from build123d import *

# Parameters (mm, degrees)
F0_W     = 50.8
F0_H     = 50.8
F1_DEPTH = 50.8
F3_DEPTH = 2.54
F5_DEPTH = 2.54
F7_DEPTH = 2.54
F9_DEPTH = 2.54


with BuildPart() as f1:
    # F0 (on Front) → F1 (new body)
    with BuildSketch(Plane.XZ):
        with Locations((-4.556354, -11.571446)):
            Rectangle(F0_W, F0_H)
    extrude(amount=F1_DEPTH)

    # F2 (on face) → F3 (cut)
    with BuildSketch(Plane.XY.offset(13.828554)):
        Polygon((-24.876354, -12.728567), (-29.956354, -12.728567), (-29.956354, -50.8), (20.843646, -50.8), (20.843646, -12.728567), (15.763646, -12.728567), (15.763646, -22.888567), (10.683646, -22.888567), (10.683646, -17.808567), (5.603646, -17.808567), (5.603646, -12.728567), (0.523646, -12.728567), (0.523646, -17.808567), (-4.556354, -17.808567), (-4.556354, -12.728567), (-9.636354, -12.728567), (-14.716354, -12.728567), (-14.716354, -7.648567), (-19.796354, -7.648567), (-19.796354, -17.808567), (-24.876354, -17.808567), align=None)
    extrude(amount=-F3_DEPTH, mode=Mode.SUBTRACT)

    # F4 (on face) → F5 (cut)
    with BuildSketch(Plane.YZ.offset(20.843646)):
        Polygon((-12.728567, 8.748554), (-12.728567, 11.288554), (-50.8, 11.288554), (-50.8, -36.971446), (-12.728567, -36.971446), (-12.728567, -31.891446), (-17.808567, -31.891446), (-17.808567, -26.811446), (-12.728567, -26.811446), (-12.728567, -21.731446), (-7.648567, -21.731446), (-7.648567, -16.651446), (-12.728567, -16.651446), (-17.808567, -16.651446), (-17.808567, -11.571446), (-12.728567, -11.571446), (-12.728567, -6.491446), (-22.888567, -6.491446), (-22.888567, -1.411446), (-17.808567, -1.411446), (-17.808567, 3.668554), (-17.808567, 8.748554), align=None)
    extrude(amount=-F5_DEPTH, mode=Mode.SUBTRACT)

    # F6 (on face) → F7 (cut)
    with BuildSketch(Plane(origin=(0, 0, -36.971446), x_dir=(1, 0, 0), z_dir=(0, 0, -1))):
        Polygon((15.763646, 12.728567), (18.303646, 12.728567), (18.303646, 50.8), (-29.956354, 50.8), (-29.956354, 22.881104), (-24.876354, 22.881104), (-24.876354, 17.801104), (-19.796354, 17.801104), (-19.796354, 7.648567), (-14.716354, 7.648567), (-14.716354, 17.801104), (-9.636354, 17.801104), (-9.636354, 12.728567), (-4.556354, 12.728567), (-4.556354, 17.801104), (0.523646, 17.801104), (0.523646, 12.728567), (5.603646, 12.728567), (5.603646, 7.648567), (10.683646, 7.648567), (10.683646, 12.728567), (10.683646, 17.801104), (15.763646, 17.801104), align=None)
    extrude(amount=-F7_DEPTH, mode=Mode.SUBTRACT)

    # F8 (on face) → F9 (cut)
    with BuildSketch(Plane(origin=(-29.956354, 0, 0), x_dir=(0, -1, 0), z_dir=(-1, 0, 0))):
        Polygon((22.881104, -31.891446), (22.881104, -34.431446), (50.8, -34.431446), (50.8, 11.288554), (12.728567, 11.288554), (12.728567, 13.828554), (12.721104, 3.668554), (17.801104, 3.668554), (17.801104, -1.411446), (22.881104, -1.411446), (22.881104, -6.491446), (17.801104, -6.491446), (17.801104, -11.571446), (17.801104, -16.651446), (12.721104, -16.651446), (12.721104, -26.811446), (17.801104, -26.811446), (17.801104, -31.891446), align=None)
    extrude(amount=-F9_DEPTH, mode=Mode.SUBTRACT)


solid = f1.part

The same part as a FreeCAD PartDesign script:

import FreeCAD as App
import Part
import Sketcher

V = App.Vector
Q = App.Units.Quantity


def add_polygon(sketch, points):
    """Adds a closed chain of lines whose ends are joined by coincident constraints."""
    first, n = sketch.GeometryCount, len(points)
    for a, b in zip(points, points[1:] + points[:1]):
        sketch.addGeometry(Part.LineSegment(App.Vector(*a, 0), App.Vector(*b, 0)), False)
    for i in range(n):
        sketch.addConstraint(Sketcher.Constraint("Coincident", first + i, 2, first + (i + 1) % n, 1))

doc = App.newDocument("Part")
body = doc.addObject("PartDesign::Body", "Body")

sketch1 = body.newObject("Sketcher::SketchObject", "Sketch")
sketch1.AttachmentSupport = (doc.getObject("XZ_Plane"), [""])
sketch1.MapMode = "FlatFace"
add_polygon(sketch1, [(-29.956354, 13.828554), (-29.956354, -36.971446), (20.843646, -36.971446), (20.843646, 13.828554)])
sketch1.addConstraint([
    Sketcher.Constraint("Vertical", 0),
    Sketcher.Constraint("Horizontal", 1),
    Sketcher.Constraint("Vertical", 2),
    Sketcher.Constraint("Horizontal", 3),
    Sketcher.Constraint("Equal", 3, 0),
    Sketcher.Constraint("DistanceX", 1, 1, 1, 2, Q("2 in")),
    Sketcher.Constraint("DistanceX", 0, 2, -1, 1, 29.956354),
    Sketcher.Constraint("DistanceY", 0, 2, -1, 1, 36.971446),
])
pad1 = body.newObject("PartDesign::Pad", "Pad")
pad1.Profile = sketch1
pad1.Length = Q("2 in")

sketch2 = body.newObject("Sketcher::SketchObject", "Sketch001")
sketch2.AttachmentSupport = (doc.getObject("XY_Plane"), [""])
sketch2.MapMode = "FlatFace"
sketch2.AttachmentOffset = App.Placement(V(0, 0, 13.828554), App.Rotation())
add_polygon(sketch2, [(-24.876354, -12.728567), (-29.956354, -12.728567), (-29.956354, -50.8), (20.843646, -50.8), (20.843646, -12.728567), (15.763646, -12.728567), (15.763646, -22.888567), (10.683646, -22.888567), (10.683646, -17.808567), (5.603646, -17.808567), (5.603646, -12.728567), (0.523646, -12.728567), (0.523646, -17.808567), (-4.556354, -17.808567), (-4.556354, -12.728567), (-14.716354, -12.728567), (-14.716354, -7.648567), (-19.796354, -7.648567), (-19.796354, -17.808567), (-24.876354, -17.808567)])
sketch2.addConstraint([
    Sketcher.Constraint("Horizontal", 0),
    Sketcher.Constraint("Vertical", 1),
    Sketcher.Constraint("Horizontal", 2),
    Sketcher.Constraint("Vertical", 3),
    Sketcher.Constraint("Horizontal", 4),
    Sketcher.Constraint("Vertical", 5),
    Sketcher.Constraint("Horizontal", 6),
    Sketcher.Constraint("Vertical", 7),
    Sketcher.Constraint("Horizontal", 8),
    Sketcher.Constraint("Vertical", 9),
    Sketcher.Constraint("Horizontal", 10),
    Sketcher.Constraint("Vertical", 11),
    Sketcher.Constraint("Horizontal", 12),
    Sketcher.Constraint("Vertical", 13),
    Sketcher.Constraint("Horizontal", 14),
    Sketcher.Constraint("Vertical", 15),
    Sketcher.Constraint("Horizontal", 16),
    Sketcher.Constraint("Vertical", 17),
    Sketcher.Constraint("Horizontal", 18),
    Sketcher.Constraint("Vertical", 19),
    Sketcher.Constraint("Horizontal", 0, 2, 3, 2),
    Sketcher.Constraint("Horizontal", 4, 2, 9, 2),
    Sketcher.Constraint("Horizontal", 8, 2, 11, 2),
    Sketcher.Constraint("Horizontal", 10, 2, 13, 2),
    Sketcher.Constraint("Horizontal", 12, 2, 17, 2),
    Sketcher.Constraint("Equal", 0, 4),
    Sketcher.Constraint("Equal", 4, 6),
    Sketcher.Constraint("Equal", 6, 8),
    Sketcher.Constraint("Equal", 8, 10),
    Sketcher.Constraint("Equal", 10, 12),
    Sketcher.Constraint("Equal", 12, 16),
    Sketcher.Constraint("Equal", 16, 18),
    Sketcher.Constraint("Equal", 14, 5),
    Sketcher.Constraint("Equal", 18, 7),
    Sketcher.Constraint("Equal", 7, 9),
    Sketcher.Constraint("Equal", 13, 15),
    Sketcher.Constraint("DistanceX", 2, 1, 2, 2, Q("2 in")),
    Sketcher.Constraint("DistanceY", 1, 2, -1, 1, Q("2 in")),
    Sketcher.Constraint("DistanceY", 1, 2, 1, 1, 38.071433),
    Sketcher.Constraint("DistanceX", 0, 2, -1, 1, 29.956354),
])
pocket1 = body.newObject("PartDesign::Pocket", "Pocket")
pocket1.Profile = sketch2
pocket1.Length = Q("0.1 in")

sketch3 = body.newObject("Sketcher::SketchObject", "Sketch002")
sketch3.AttachmentSupport = (doc.getObject("YZ_Plane"), [""])
sketch3.MapMode = "FlatFace"
sketch3.AttachmentOffset = App.Placement(V(0, 0, 20.843646), App.Rotation())
add_polygon(sketch3, [(-12.728567, 8.748554), (-12.728567, 11.288554), (-50.8, 11.288554), (-50.8, -36.971446), (-12.728567, -36.971446), (-12.728567, -31.891446), (-17.808567, -31.891446), (-17.808567, -26.811446), (-12.728567, -26.811446), (-12.728567, -21.731446), (-7.648567, -21.731446), (-7.648567, -16.651446), (-17.808567, -16.651446), (-17.808567, -11.571446), (-12.728567, -11.571446), (-12.728567, -6.491446), (-22.888567, -6.491446), (-22.888567, -1.411446), (-17.808567, -1.411446), (-17.808567, 8.748554)])
sketch3.addConstraint([
    Sketcher.Constraint("Vertical", 0),
    Sketcher.Constraint("Horizontal", 1),
    Sketcher.Constraint("Vertical", 2),
    Sketcher.Constraint("Horizontal", 3),
    Sketcher.Constraint("Vertical", 4),
    Sketcher.Constraint("Horizontal", 5),
    Sketcher.Constraint("Vertical", 6),
    Sketcher.Constraint("Horizontal", 7),
    Sketcher.Constraint("Vertical", 8),
    Sketcher.Constraint("Horizontal", 9),
    Sketcher.Constraint("Vertical", 10),
    Sketcher.Constraint("Horizontal", 11),
    Sketcher.Constraint("Vertical", 12),
    Sketcher.Constraint("Horizontal", 13),
    Sketcher.Constraint("Vertical", 14),
    Sketcher.Constraint("Horizontal", 15),
    Sketcher.Constraint("Vertical", 16),
    Sketcher.Constraint("Horizontal", 17),
    Sketcher.Constraint("Vertical", 18),
    Sketcher.Constraint("Horizontal", 19),
    Sketcher.Constraint("Vertical", 0, 2, 3, 2),
    Sketcher.Constraint("Vertical", 4, 2, 7, 2),
    Sketcher.Constraint("Vertical", 6, 2, 11, 2),
    Sketcher.Constraint("Vertical", 8, 2, 13, 2),
    Sketcher.Constraint("Vertical", 12, 2, 17, 2),
    Sketcher.Constraint("Equal", 7, 9),
    Sketcher.Constraint("Equal", 11, 15),
    Sketcher.Constraint("Equal", 19, 4),
    Sketcher.Constraint("Equal", 4, 6),
    Sketcher.Constraint("Equal", 6, 8),
    Sketcher.Constraint("Equal", 8, 10),
    Sketcher.Constraint("Equal", 10, 12),
    Sketcher.Constraint("Equal", 12, 14),
    Sketcher.Constraint("Equal", 14, 16),
    Sketcher.Constraint("Equal", 15, 18),
    Sketcher.Constraint("DistanceX", 5, 2, 5, 1, Q("0.2 in")),
    Sketcher.Constraint("DistanceY", 0, 1, 0, 2, Q("0.1 in")),
    Sketcher.Constraint("DistanceX", 1, 2, -1, 1, Q("2 in")),
    Sketcher.Constraint("DistanceX", 1, 2, 1, 1, 38.071433),
    Sketcher.Constraint("DistanceY", -1, 1, 0, 2, 11.288554),
])
pocket2 = body.newObject("PartDesign::Pocket", "Pocket001")
pocket2.Profile = sketch3
pocket2.Length = Q("0.1 in")

sketch4 = body.newObject("Sketcher::SketchObject", "Sketch003")
sketch4.AttachmentSupport = (doc.getObject("XY_Plane"), [""])
sketch4.MapMode = "FlatFace"
sketch4.AttachmentOffset = App.Placement(V(0, 0, -36.971446), App.Rotation())
add_polygon(sketch4, [(15.763646, -12.728567), (18.303646, -12.728567), (18.303646, -50.8), (-29.956354, -50.8), (-29.956354, -22.881104), (-24.876354, -22.881104), (-24.876354, -17.801104), (-19.796354, -17.801104), (-19.796354, -7.648567), (-14.716354, -7.648567), (-14.716354, -17.801104), (-9.636354, -17.801104), (-9.636354, -12.728567), (-4.556354, -12.728567), (-4.556354, -17.801104), (0.523646, -17.801104), (0.523646, -12.728567), (5.603646, -12.728567), (5.603646, -7.648567), (10.683646, -7.648567), (10.683646, -17.801104), (15.763646, -17.801104)])
sketch4.addConstraint([
    Sketcher.Constraint("Horizontal", 0),
    Sketcher.Constraint("Vertical", 1),
    Sketcher.Constraint("Horizontal", 2),
    Sketcher.Constraint("Vertical", 3),
    Sketcher.Constraint("Horizontal", 4),
    Sketcher.Constraint("Vertical", 5),
    Sketcher.Constraint("Horizontal", 6),
    Sketcher.Constraint("Vertical", 7),
    Sketcher.Constraint("Horizontal", 8),
    Sketcher.Constraint("Vertical", 9),
    Sketcher.Constraint("Horizontal", 10),
    Sketcher.Constraint("Vertical", 11),
    Sketcher.Constraint("Horizontal", 12),
    Sketcher.Constraint("Vertical", 13),
    Sketcher.Constraint("Horizontal", 14),
    Sketcher.Constraint("Vertical", 15),
    Sketcher.Constraint("Horizontal", 16),
    Sketcher.Constraint("Vertical", 17),
    Sketcher.Constraint("Horizontal", 18),
    Sketcher.Constraint("Vertical", 19),
    Sketcher.Constraint("Horizontal", 20),
    Sketcher.Constraint("Vertical", 21),
    Sketcher.Constraint("Horizontal", 6, 2, 9, 2),
    Sketcher.Constraint("Horizontal", 0, 2, 11, 2),
    Sketcher.Constraint("Horizontal", 10, 2, 13, 2),
    Sketcher.Constraint("Horizontal", 12, 2, 15, 2),
    Sketcher.Constraint("Horizontal", 8, 2, 17, 2),
    Sketcher.Constraint("Horizontal", 14, 2, 19, 2),
    Sketcher.Constraint("Equal", 4, 6),
    Sketcher.Constraint("Equal", 6, 8),
    Sketcher.Constraint("Equal", 8, 10),
    Sketcher.Constraint("Equal", 10, 12),
    Sketcher.Constraint("Equal", 12, 14),
    Sketcher.Constraint("Equal", 14, 16),
    Sketcher.Constraint("Equal", 16, 18),
    Sketcher.Constraint("Equal", 18, 20),
    Sketcher.Constraint("Equal", 20, 5),
    Sketcher.Constraint("Equal", 5, 17),
    Sketcher.Constraint("DistanceX", 0, 1, 0, 2, Q("0.1 in")),
    Sketcher.Constraint("DistanceX", 2, 2, 2, 1, Q("1.9 in")),
    Sketcher.Constraint("DistanceY", 1, 2, -1, 1, Q("2 in")),
    Sketcher.Constraint("DistanceY", 1, 2, 1, 1, 38.071433),
    Sketcher.Constraint("DistanceY", 3, 1, 3, 2, 27.918896),
    Sketcher.Constraint("DistanceX", -1, 1, 0, 2, 18.303646),
])
pocket3 = body.newObject("PartDesign::Pocket", "Pocket002")
pocket3.Profile = sketch4
pocket3.Length = Q("0.1 in")
pocket3.Reversed = True

sketch5 = body.newObject("Sketcher::SketchObject", "Sketch004")
sketch5.AttachmentSupport = (doc.getObject("YZ_Plane"), [""])
sketch5.MapMode = "FlatFace"
sketch5.AttachmentOffset = App.Placement(V(0, 0, -29.956354), App.Rotation())
add_polygon(sketch5, [(-22.881104, -31.891446), (-22.881104, -34.431446), (-50.8, -34.431446), (-50.8, 11.288554), (-12.728567, 11.288554), (-12.728567, 13.828554), (-12.721104, 3.668554), (-17.801104, 3.668554), (-17.801104, -1.411446), (-22.881104, -1.411446), (-22.881104, -6.491446), (-17.801104, -6.491446), (-17.801104, -16.651446), (-12.721104, -16.651446), (-12.721104, -26.811446), (-17.801104, -26.811446), (-17.801104, -31.891446)])
sketch5.addConstraint([
    Sketcher.Constraint("Vertical", 0),
    Sketcher.Constraint("Horizontal", 1),
    Sketcher.Constraint("Vertical", 2),
    Sketcher.Constraint("Horizontal", 3),
    Sketcher.Constraint("Vertical", 4),
    Sketcher.Constraint("Horizontal", 6),
    Sketcher.Constraint("Vertical", 7),
    Sketcher.Constraint("Horizontal", 8),
    Sketcher.Constraint("Vertical", 9),
    Sketcher.Constraint("Horizontal", 10),
    Sketcher.Constraint("Vertical", 11),
    Sketcher.Constraint("Horizontal", 12),
    Sketcher.Constraint("Vertical", 13),
    Sketcher.Constraint("Horizontal", 14),
    Sketcher.Constraint("Vertical", 15),
    Sketcher.Constraint("Horizontal", 16),
    Sketcher.Constraint("Vertical", 0, 2, 8, 2),
    Sketcher.Constraint("Vertical", 7, 2, 10, 2),
    Sketcher.Constraint("Vertical", 5, 2, 12, 2),
    Sketcher.Constraint("Vertical", 11, 2, 14, 2),
    Sketcher.Constraint("Equal", 6, 8),
    Sketcher.Constraint("Equal", 0, 4),
    Sketcher.Constraint("Equal", 16, 7),
    Sketcher.Constraint("Equal", 7, 9),
    Sketcher.Constraint("Equal", 11, 13),
    Sketcher.Constraint("Equal", 9, 15),
    Sketcher.Constraint("DistanceX", 6, 2, 6, 1, Q("0.2 in")),
    Sketcher.Constraint("DistanceY", 0, 2, 0, 1, Q("0.1 in")),
    Sketcher.Constraint("DistanceY", 2, 1, 2, 2, Q("1.8 in")),
    Sketcher.Constraint("DistanceY", 11, 2, 11, 1, Q("0.4 in")),
    Sketcher.Constraint("DistanceX", 1, 2, -1, 1, Q("2 in")),
    Sketcher.Constraint("DistanceX", 1, 2, 1, 1, 27.918896),
    Sketcher.Constraint("DistanceX", 3, 1, 3, 2, 38.071433),
    Sketcher.Constraint("DistanceY", 0, 2, -1, 1, 34.431446),
])
pocket4 = body.newObject("PartDesign::Pocket", "Pocket003")
pocket4.Profile = sketch5
pocket4.Length = Q("0.1 in")
pocket4.Reversed = True

doc.recompute()
